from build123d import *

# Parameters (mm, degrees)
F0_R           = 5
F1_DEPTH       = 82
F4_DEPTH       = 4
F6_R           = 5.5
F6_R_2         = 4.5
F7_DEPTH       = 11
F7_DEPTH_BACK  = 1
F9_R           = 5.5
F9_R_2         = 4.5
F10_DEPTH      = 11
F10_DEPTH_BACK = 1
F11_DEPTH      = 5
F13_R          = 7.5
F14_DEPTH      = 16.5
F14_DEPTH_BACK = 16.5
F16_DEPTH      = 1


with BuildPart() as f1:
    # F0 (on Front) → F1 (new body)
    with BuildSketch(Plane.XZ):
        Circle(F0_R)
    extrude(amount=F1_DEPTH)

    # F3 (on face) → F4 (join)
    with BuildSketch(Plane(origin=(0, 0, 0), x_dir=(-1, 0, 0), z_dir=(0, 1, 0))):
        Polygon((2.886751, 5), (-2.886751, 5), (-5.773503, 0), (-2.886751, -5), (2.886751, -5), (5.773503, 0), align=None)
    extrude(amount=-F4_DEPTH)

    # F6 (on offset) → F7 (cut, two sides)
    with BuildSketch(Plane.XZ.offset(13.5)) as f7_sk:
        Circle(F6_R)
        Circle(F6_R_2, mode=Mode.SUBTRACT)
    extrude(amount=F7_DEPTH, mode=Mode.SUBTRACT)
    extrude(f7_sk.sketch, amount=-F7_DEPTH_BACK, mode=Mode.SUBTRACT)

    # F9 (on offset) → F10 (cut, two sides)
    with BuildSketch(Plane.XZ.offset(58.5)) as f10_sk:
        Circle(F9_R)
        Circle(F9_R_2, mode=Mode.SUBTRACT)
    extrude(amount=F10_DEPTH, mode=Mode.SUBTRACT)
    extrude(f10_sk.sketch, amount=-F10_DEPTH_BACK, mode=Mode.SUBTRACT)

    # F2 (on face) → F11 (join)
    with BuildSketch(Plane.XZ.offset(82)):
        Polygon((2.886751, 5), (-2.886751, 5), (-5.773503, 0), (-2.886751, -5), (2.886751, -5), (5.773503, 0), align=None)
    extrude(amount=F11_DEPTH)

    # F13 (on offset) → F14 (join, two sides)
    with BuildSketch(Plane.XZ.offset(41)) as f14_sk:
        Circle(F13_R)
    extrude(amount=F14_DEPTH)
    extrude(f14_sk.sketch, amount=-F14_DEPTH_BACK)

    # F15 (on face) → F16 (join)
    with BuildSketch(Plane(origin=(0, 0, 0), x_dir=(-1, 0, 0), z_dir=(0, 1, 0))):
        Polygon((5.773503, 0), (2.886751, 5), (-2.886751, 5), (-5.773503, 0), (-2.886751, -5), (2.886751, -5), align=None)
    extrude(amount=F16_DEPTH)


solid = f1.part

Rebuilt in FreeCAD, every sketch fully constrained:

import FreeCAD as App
import Part
import Sketcher
from FreeCAD import Vector
Q = App.Units.Quantity

doc = App.newDocument("Part")
params = doc.addObject("Spreadsheet::Sheet", "Params")
for row, (alias, value) in enumerate([
    ("sketch1_diameter", "10 mm"),
    ("pad1_length", "82 mm"),
    ("pad2_length", "4 mm"),
    ("sketch3_diameter", "11 mm"),
    ("sketch3_diameter2", "9 mm"),
    ("pocket1_length", "11 mm"),
    ("pocket1_length2", "1 mm"),
    ("sketch4_diameter", "11 mm"),
    ("sketch4_diameter2", "9 mm"),
    ("pocket2_length", "11 mm"),
    ("pocket2_length2", "1 mm"),
    ("pad3_length", "5 mm"),
    ("sketch6_diameter", "15 mm"),
    ("pad4_length", "16.5 mm"),
    ("pad4_length2", "16.5 mm"),
    ("pad5_length", "1 mm"),
], start=1):
    params.set(f"A{row}", alias)
    params.set(f"B{row}", "=" + value)
    params.setAlias(f"B{row}", alias)

body = doc.addObject("PartDesign::Body", "Body")

# Sketch on XZ plane
sketch1 = body.newObject("Sketcher::SketchObject", "Sketch")
sketch1.AttachmentSupport = (doc.getObject("XZ_Plane"), [""])
sketch1.MapMode = "FlatFace"
sketch1.addGeometry(Part.Circle(Vector(0, 0, 0), Vector(0, 0, 1), 5), False)
sketch1.addConstraint([
    Sketcher.Constraint("Coincident", 0, 3, -1, 1),
    Sketcher.Constraint("Diameter", 0, Q("10 mm")),
])
sketch1.setExpression("Constraints[1]", "Params.sketch1_diameter")
pad1 = body.newObject("PartDesign::Pad", "Pad")
pad1.Profile = sketch1
pad1.setExpression("Length", "Params.pad1_length")

# Sketch on XZ plane
sketch2 = body.newObject("Sketcher::SketchObject", "Sketch001")
sketch2.AttachmentSupport = (doc.getObject("XZ_Plane"), [""])
sketch2.MapMode = "FlatFace"
sketch2.addGeometry([
    Part.LineSegment(Vector(-3, 5, 0), Vector(3, 5, 0)),  # 0
    Part.LineSegment(Vector(3, 5, 0), Vector(6, 0, 0)),  # 1
    Part.LineSegment(Vector(6, 0, 0), Vector(3, -5, 0)),  # 2
    Part.LineSegment(Vector(3, -5, 0), Vector(-3, -5, 0)),  # 3
    Part.LineSegment(Vector(-3, -5, 0), Vector(-6, 0, 0)),  # 4
    Part.LineSegment(Vector(-6, 0, 0), Vector(-3, 5, 0)),  # 5
], False)
sketch2.addConstraint([
    Sketcher.Constraint("Coincident", 0, 2, 1, 1),
    Sketcher.Constraint("Coincident", 1, 2, 2, 1),
    Sketcher.Constraint("Coincident", 2, 2, 3, 1),
    Sketcher.Constraint("Coincident", 3, 2, 4, 1),
    Sketcher.Constraint("Coincident", 4, 2, 5, 1),
    Sketcher.Constraint("Coincident", 5, 2, 0, 1),
    Sketcher.Constraint("Horizontal", 0),
    Sketcher.Constraint("Horizontal", 3),
    Sketcher.Constraint("Symmetric", 0, 2, 3, 2, -1, 1),
    Sketcher.Constraint("Symmetric", 1, 2, 4, 2, -1, 1),
    Sketcher.Constraint("PointOnObject", 1, 2, -1),
    Sketcher.Constraint("Parallel", 2, 5),
    Sketcher.Constraint("Vertical", 0, 2, 2, 2),
    Sketcher.Constraint("Angle", 1, Q("-59.999994 deg")),
    Sketcher.Constraint("DistanceY", -1, 1, 0, 2, Q("5 mm")),
    Sketcher.Constraint("DistanceX", 0, 1, 0, 2, Q("5.773502 mm")),
])
pad2 = body.newObject("PartDesign::Pad", "Pad001")
pad2.Profile = sketch2
pad2.setExpression("Length", "Params.pad2_length")

# Sketch on XZ plane
sketch3 = body.newObject("Sketcher::SketchObject", "Sketch002")
sketch3.AttachmentSupport = (doc.getObject("XZ_Plane"), [""])
sketch3.MapMode = "FlatFace"
sketch3.AttachmentOffset = App.Placement(Vector(0, 0, 13.5), App.Rotation())
sketch3.addGeometry([
    Part.Circle(Vector(0, 0, 0), Vector(0, 0, 1), 5.5),
    Part.Circle(Vector(0, 0, 0), Vector(0, 0, 1), 4.5),
], False)
sketch3.addConstraint([
    Sketcher.Constraint("Coincident", 0, 3, -1, 1),
    Sketcher.Constraint("Coincident", 1, 3, -1, 1),
    Sketcher.Constraint("Diameter", 0, Q("11 mm")),
    Sketcher.Constraint("Diameter", 1, Q("9 mm")),
])
sketch3.setExpression("Constraints[2]", "Params.sketch3_diameter")
sketch3.setExpression("Constraints[3]", "Params.sketch3_diameter2")
pocket1 = body.newObject("PartDesign::Pocket", "Pocket")
pocket1.Profile = sketch3
pocket1.Type = "TwoLengths"
pocket1.setExpression("Length", "Params.pocket1_length")
pocket1.setExpression("Length2", "Params.pocket1_length2")
pocket1.Reversed = True

# Sketch on XZ plane
sketch4 = body.newObject("Sketcher::SketchObject", "Sketch003")
sketch4.AttachmentSupport = (doc.getObject("XZ_Plane"), [""])
sketch4.MapMode = "FlatFace"
sketch4.AttachmentOffset = App.Placement(Vector(0, 0, 58.5), App.Rotation())
sketch4.addGeometry([
    Part.Circle(Vector(0, 0, 0), Vector(0, 0, 1), 5.5),
    Part.Circle(Vector(0, 0, 0), Vector(0, 0, 1), 4.5),
], False)
sketch4.addConstraint([
    Sketcher.Constraint("Coincident", 0, 3, -1, 1),
    Sketcher.Constraint("Coincident", 1, 3, -1, 1),
    Sketcher.Constraint("Diameter", 0, Q("11 mm")),
    Sketcher.Constraint("Diameter", 1, Q("9 mm")),
])
sketch4.setExpression("Constraints[2]", "Params.sketch4_diameter")
sketch4.setExpression("Constraints[3]", "Params.sketch4_diameter2")
pocket2 = body.newObject("PartDesign::Pocket", "Pocket001")
pocket2.Profile = sketch4
pocket2.Type = "TwoLengths"
pocket2.setExpression("Length", "Params.pocket2_length")
pocket2.setExpression("Length2", "Params.pocket2_length2")
pocket2.Reversed = True

# Sketch on XZ plane
sketch5 = body.newObject("Sketcher::SketchObject", "Sketch004")
sketch5.AttachmentSupport = (doc.getObject("XZ_Plane"), [""])
sketch5.MapMode = "FlatFace"
sketch5.AttachmentOffset = App.Placement(Vector(0, 0, 82), App.Rotation())
sketch5.addGeometry([
    Part.LineSegment(Vector(3, 5, 0), Vector(-3, 5, 0)),  # 0
    Part.LineSegment(Vector(-3, 5, 0), Vector(-6, 0, 0)),  # 1
    Part.LineSegment(Vector(-6, 0, 0), Vector(-3, -5, 0)),  # 2
    Part.LineSegment(Vector(-3, -5, 0), Vector(3, -5, 0)),  # 3
    Part.LineSegment(Vector(3, -5, 0), Vector(6, 0, 0)),  # 4
    Part.LineSegment(Vector(6, 0, 0), Vector(3, 5, 0)),  # 5
], False)
sketch5.addConstraint([
    Sketcher.Constraint("Coincident", 0, 2, 1, 1),
    Sketcher.Constraint("Coincident", 1, 2, 2, 1),
    Sketcher.Constraint("Coincident", 2, 2, 3, 1),
    Sketcher.Constraint("Coincident", 3, 2, 4, 1),
    Sketcher.Constraint("Coincident", 4, 2, 5, 1),
    Sketcher.Constraint("Coincident", 5, 2, 0, 1),
    Sketcher.Constraint("Horizontal", 0),
    Sketcher.Constraint("Horizontal", 3),
    Sketcher.Constraint("Symmetric", 0, 2, 3, 2, -1, 1),
    Sketcher.Constraint("Symmetric", 1, 2, 4, 2, -1, 1),
    Sketcher.Constraint("PointOnObject", 1, 2, -1),
    Sketcher.Constraint("Parallel", 2, 5),
    Sketcher.Constraint("Vertical", 0, 2, 2, 2),
    Sketcher.Constraint("Angle", 1, Q("-120.000006 deg")),
    Sketcher.Constraint("DistanceY", -1, 1, 0, 2, Q("5 mm")),
    Sketcher.Constraint("DistanceX", 0, 2, 0, 1, Q("5.773502 mm")),
])
pad3 = body.newObject("PartDesign::Pad", "Pad002")
pad3.Profile = sketch5
pad3.setExpression("Length", "Params.pad3_length")

# Sketch on XZ plane
sketch6 = body.newObject("Sketcher::SketchObject", "Sketch005")
sketch6.AttachmentSupport = (doc.getObject("XZ_Plane"), [""])
sketch6.MapMode = "FlatFace"
sketch6.AttachmentOffset = App.Placement(Vector(0, 0, 41), App.Rotation())
sketch6.addGeometry(Part.Circle(Vector(0, 0, 0), Vector(0, 0, 1), 8), False)
sketch6.addConstraint([
    Sketcher.Constraint("Coincident", 0, 3, -1, 1),
    Sketcher.Constraint("Diameter", 0, Q("15 mm")),
])
sketch6.setExpression("Constraints[1]", "Params.sketch6_diameter")
pad4 = body.newObject("PartDesign::Pad", "Pad003")
pad4.Profile = sketch6
pad4.Type = "TwoLengths"
pad4.setExpression("Length", "Params.pad4_length")
pad4.setExpression("Length2", "Params.pad4_length2")

# Sketch on XZ plane
sketch7 = body.newObject("Sketcher::SketchObject", "Sketch006")
sketch7.AttachmentSupport = (doc.getObject("XZ_Plane"), [""])
sketch7.MapMode = "FlatFace"
sketch7.addGeometry([
    Part.LineSegment(Vector(-6, 0, 0), Vector(-3, 5, 0)),  # 0
    Part.LineSegment(Vector(-3, 5, 0), Vector(3, 5, 0)),  # 1
    Part.LineSegment(Vector(3, 5, 0), Vector(6, 0, 0)),  # 2
    Part.LineSegment(Vector(6, 0, 0), Vector(3, -5, 0)),  # 3
    Part.LineSegment(Vector(3, -5, 0), Vector(-3, -5, 0)),  # 4
    Part.LineSegment(Vector(-3, -5, 0), Vector(-6, 0, 0)),  # 5
], False)
sketch7.addConstraint([
    Sketcher.Constraint("Coincident", 0, 2, 1, 1),
    Sketcher.Constraint("Coincident", 1, 2, 2, 1),
    Sketcher.Constraint("Coincident", 2, 2, 3, 1),
    Sketcher.Constraint("Coincident", 3, 2, 4, 1),
    Sketcher.Constraint("Coincident", 4, 2, 5, 1),
    Sketcher.Constraint("Coincident", 5, 2, 0, 1),
    Sketcher.Constraint("Horizontal", 1),
    Sketcher.Constraint("Horizontal", 4),
    Sketcher.Constraint("Symmetric", 0, 2, 3, 2, -1, 1),
    Sketcher.Constraint("Symmetric", 2, 2, 5, 2, -1, 1),
    Sketcher.Constraint("PointOnObject", 2, 2, -1),
    Sketcher.Constraint("Parallel", 2, 5),
    Sketcher.Constraint("Vertical", 1, 2, 3, 2),
    Sketcher.Constraint("Angle", 0, Q("59.999994 deg")),
    Sketcher.Constraint("DistanceY", -1, 1, 0, 2, Q("5 mm")),
    Sketcher.Constraint("DistanceX", 1, 1, 1, 2, Q("5.773502 mm")),
])
pad5 = body.newObject("PartDesign::Pad", "Pad004")
pad5.Profile = sketch7
pad5.setExpression("Length", "Params.pad5_length")
pad5.Reversed = True

doc.recompute()
